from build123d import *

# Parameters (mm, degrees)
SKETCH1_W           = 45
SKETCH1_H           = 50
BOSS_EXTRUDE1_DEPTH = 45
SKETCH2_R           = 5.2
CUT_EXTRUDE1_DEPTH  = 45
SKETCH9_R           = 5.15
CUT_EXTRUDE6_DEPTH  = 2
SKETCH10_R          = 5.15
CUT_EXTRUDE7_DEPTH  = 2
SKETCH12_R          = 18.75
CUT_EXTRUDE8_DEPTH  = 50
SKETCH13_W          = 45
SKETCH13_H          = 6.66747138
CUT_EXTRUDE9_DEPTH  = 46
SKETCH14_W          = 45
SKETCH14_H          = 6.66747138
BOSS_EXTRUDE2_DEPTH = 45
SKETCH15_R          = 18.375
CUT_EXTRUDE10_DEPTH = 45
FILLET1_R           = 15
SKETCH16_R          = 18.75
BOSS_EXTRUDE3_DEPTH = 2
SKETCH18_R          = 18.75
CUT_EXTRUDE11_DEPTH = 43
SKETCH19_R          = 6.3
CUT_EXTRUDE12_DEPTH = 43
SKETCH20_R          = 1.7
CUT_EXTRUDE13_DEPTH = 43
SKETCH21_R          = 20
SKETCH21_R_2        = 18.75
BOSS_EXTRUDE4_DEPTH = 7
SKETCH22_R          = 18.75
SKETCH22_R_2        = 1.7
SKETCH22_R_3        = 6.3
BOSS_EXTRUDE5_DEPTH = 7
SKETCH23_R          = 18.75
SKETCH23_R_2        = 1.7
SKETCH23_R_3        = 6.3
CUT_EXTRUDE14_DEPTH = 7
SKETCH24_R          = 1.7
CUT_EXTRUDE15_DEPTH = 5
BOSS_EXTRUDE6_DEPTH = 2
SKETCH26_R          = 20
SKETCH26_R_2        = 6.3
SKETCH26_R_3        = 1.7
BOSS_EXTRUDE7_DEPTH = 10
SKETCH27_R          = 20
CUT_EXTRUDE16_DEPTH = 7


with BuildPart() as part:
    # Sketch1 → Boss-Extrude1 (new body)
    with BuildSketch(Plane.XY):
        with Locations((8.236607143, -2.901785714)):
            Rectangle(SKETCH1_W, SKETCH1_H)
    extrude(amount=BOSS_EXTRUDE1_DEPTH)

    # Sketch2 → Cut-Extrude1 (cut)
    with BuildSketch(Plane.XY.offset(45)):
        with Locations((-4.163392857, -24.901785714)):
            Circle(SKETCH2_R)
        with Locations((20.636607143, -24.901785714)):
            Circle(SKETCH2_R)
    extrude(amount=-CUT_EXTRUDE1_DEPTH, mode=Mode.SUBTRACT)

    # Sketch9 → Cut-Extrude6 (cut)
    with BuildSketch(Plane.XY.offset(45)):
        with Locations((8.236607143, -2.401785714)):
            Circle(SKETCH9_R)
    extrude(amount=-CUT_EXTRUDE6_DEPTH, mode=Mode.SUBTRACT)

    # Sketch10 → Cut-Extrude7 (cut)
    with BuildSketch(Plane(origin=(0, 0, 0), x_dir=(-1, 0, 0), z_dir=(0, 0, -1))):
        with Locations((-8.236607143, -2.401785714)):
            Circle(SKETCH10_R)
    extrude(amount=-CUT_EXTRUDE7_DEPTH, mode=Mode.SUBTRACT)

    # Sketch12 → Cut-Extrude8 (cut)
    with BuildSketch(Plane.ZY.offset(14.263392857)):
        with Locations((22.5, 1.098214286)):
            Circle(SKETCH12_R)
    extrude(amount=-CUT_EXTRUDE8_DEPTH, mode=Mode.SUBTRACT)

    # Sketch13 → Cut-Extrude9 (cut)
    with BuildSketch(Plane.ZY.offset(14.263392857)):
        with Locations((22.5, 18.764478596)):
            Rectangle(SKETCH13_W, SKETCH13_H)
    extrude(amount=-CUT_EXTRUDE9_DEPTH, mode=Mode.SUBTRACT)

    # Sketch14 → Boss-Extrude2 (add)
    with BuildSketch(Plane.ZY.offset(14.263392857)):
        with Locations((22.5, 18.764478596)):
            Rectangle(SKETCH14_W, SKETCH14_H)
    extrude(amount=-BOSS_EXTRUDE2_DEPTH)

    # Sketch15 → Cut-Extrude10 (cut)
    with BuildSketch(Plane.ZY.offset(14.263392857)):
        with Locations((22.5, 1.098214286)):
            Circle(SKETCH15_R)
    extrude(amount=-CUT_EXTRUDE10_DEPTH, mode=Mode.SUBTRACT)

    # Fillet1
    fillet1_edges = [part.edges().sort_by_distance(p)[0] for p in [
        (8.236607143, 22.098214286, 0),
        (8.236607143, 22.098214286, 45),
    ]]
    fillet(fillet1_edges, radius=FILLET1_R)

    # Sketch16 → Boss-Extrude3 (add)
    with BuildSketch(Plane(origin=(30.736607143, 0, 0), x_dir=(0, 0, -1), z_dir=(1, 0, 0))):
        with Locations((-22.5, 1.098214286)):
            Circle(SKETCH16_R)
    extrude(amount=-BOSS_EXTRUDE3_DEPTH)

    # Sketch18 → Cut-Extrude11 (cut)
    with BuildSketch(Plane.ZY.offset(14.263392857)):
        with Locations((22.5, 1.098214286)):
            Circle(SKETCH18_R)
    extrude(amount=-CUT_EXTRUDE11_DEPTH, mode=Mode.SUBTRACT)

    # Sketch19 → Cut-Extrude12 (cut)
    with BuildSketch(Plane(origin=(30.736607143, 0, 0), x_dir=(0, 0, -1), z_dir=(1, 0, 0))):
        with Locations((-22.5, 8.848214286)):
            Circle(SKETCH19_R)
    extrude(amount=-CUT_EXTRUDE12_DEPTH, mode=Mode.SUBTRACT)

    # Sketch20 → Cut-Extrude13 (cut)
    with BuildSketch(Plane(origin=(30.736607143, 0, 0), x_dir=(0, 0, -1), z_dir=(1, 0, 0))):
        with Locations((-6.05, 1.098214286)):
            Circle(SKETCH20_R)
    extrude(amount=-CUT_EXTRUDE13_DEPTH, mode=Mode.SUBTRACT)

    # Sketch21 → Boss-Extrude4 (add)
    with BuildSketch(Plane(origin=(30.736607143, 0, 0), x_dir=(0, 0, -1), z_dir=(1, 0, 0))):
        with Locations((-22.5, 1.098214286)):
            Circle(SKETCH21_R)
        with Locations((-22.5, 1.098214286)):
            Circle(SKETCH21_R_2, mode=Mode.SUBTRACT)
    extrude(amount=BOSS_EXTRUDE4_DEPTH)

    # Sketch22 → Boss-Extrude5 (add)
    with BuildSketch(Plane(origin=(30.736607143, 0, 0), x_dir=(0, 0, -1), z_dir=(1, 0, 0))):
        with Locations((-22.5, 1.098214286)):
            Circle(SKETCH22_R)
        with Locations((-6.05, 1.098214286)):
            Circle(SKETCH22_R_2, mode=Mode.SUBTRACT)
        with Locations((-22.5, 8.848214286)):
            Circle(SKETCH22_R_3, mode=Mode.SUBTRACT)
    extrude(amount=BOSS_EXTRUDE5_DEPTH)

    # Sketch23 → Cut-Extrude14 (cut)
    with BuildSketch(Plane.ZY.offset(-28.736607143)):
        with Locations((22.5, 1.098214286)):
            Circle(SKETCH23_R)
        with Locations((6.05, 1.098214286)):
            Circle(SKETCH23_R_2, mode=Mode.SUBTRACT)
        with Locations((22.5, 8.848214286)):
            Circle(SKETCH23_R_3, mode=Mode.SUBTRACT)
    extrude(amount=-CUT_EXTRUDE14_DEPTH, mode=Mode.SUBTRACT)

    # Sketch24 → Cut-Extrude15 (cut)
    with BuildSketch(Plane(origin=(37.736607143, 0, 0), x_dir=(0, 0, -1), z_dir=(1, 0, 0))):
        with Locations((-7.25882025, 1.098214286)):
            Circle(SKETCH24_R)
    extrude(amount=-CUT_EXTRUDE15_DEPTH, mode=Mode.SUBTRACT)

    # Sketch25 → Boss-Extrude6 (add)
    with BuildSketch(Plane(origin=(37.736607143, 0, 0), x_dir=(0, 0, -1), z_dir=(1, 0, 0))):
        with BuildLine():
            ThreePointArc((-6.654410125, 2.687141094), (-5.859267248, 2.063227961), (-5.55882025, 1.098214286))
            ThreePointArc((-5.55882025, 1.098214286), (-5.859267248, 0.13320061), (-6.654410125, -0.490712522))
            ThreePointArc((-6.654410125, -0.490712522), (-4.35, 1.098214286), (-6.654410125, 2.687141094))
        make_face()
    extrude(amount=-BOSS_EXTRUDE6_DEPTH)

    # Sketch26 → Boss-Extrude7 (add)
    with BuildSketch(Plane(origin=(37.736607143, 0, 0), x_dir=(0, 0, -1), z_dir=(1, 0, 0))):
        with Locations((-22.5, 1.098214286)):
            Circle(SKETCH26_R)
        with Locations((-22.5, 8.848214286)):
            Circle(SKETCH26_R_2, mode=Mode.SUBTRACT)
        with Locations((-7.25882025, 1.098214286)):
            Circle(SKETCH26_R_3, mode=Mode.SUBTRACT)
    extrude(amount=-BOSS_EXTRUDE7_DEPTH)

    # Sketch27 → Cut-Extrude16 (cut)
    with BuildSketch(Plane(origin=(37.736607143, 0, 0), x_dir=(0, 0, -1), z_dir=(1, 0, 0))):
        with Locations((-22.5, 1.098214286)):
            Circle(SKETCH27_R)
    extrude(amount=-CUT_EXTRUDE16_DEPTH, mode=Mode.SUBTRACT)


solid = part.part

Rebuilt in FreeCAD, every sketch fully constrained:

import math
import FreeCAD as App
import Part
import Sketcher
from FreeCAD import Vector


def edges_at(feature, points):
    """Names of the edges that pass closest to the given points."""
    edges = feature.Shape.Edges
    near = lambda p: min(range(len(edges)), key=lambda i: edges[i].distToShape(Part.Vertex(*p))[0])
    return sorted({f"Edge{near(p) + 1}" for p in points})

doc = App.newDocument("Part")
body = doc.addObject("PartDesign::Body", "Body")

sketch1 = body.newObject("Sketcher::SketchObject", "Sketch")
sketch1.AttachmentSupport = (doc.getObject("XY_Plane"), [""])
sketch1.MapMode = "FlatFace"
sketch1.addGeometry(Part.LineSegment(Vector(-14, 22, 0), Vector(-14, -28, 0)), False)
sketch1.addGeometry(Part.LineSegment(Vector(-14, -28, 0), Vector(31, -28, 0)), False)
sketch1.addGeometry(Part.LineSegment(Vector(31, -28, 0), Vector(31, 22, 0)), False)
sketch1.addGeometry(Part.LineSegment(Vector(31, 22, 0), Vector(-14, 22, 0)), False)
sketch1.addConstraint(Sketcher.Constraint("Coincident", 0, 2, 1, 1))
sketch1.addConstraint(Sketcher.Constraint("Coincident", 1, 2, 2, 1))
sketch1.addConstraint(Sketcher.Constraint("Coincident", 2, 2, 3, 1))
sketch1.addConstraint(Sketcher.Constraint("Coincident", 3, 2, 0, 1))
sketch1.addConstraint(Sketcher.Constraint("Vertical", 0))
sketch1.addConstraint(Sketcher.Constraint("Horizontal", 1))
sketch1.addConstraint(Sketcher.Constraint("Vertical", 2))
sketch1.addConstraint(Sketcher.Constraint("Horizontal", 3))
sketch1.addConstraint(Sketcher.Constraint("DistanceX", 1, 1, 1, 2, 45.0))
sketch1.addConstraint(Sketcher.Constraint("DistanceY", 0, 2, 0, 1, 50.0))
sketch1.addConstraint(Sketcher.Constraint("DistanceX", 0, 2, -1, 1, 14.263393))
sketch1.addConstraint(Sketcher.Constraint("DistanceY", 0, 2, -1, 1, 27.901786))
pad1 = body.newObject("PartDesign::Pad", "Pad")
pad1.Profile = sketch1
pad1.Length = 45

sketch2 = body.newObject("Sketcher::SketchObject", "Sketch001")
sketch2.AttachmentSupport = (doc.getObject("XY_Plane"), [""])
sketch2.MapMode = "FlatFace"
sketch2.AttachmentOffset = App.Placement(Vector(0, 0, 45), App.Rotation())
sketch2.addGeometry(Part.Circle(Vector(-4, -25, 0), Vector(0, 0, 1), 5), False)
sketch2.addGeometry(Part.Circle(Vector(21, -25, 0), Vector(0, 0, 1), 5), False)
sketch2.addConstraint(Sketcher.Constraint("Equal", 0, 1))
sketch2.addConstraint(Sketcher.Constraint("Horizontal", 0, 3, 1, 3))
sketch2.addConstraint(Sketcher.Constraint("Diameter", 0, 10.4))
sketch2.addConstraint(Sketcher.Constraint("DistanceX", 0, 3, 1, 3, 24.8))
sketch2.addConstraint(Sketcher.Constraint("DistanceX", 0, 3, -1, 1, 4.163393))
sketch2.addConstraint(Sketcher.Constraint("DistanceY", 0, 3, -1, 1, 24.901786))
pocket1 = body.newObject("PartDesign::Pocket", "Pocket")
pocket1.Profile = sketch2
pocket1.Length = 45

sketch3 = body.newObject("Sketcher::SketchObject", "Sketch002")
sketch3.AttachmentSupport = (doc.getObject("XY_Plane"), [""])
sketch3.MapMode = "FlatFace"
sketch3.AttachmentOffset = App.Placement(Vector(0, 0, 45), App.Rotation())
sketch3.addGeometry(Part.Circle(Vector(8, -2, 0), Vector(0, 0, 1), 5), False)
sketch3.addConstraint(Sketcher.Constraint("Diameter", 0, 10.3))
sketch3.addConstraint(Sketcher.Constraint("DistanceX", -1, 1, 0, 3, 8.236607))
sketch3.addConstraint(Sketcher.Constraint("DistanceY", 0, 3, -1, 1, 2.401786))
pocket2 = body.newObject("PartDesign::Pocket", "Pocket001")
pocket2.Profile = sketch3
pocket2.Length = 2

sketch4 = body.newObject("Sketcher::SketchObject", "Sketch003")
sketch4.AttachmentSupport = (doc.getObject("XY_Plane"), [""])
sketch4.MapMode = "FlatFace"
sketch4.addGeometry(Part.Circle(Vector(8, -2, 0), Vector(0, 0, 1), 5), False)
sketch4.addConstraint(Sketcher.Constraint("Diameter", 0, 10.3))
sketch4.addConstraint(Sketcher.Constraint("DistanceX", -1, 1, 0, 3, 8.236607))
sketch4.addConstraint(Sketcher.Constraint("DistanceY", 0, 3, -1, 1, 2.401786))
pocket3 = body.newObject("PartDesign::Pocket", "Pocket002")
pocket3.Profile = sketch4
pocket3.Length = 2
pocket3.Reversed = True

sketch5 = body.newObject("Sketcher::SketchObject", "Sketch004")
sketch5.AttachmentSupport = (doc.getObject("YZ_Plane"), [""])
sketch5.MapMode = "FlatFace"
sketch5.AttachmentOffset = App.Placement(Vector(0, 0, -14.263393), App.Rotation())
sketch5.addGeometry(Part.Circle(Vector(1, 22, 0), Vector(0, 0, 1), 19), False)
sketch5.addConstraint(Sketcher.Constraint("Diameter", 0, 37.5))
sketch5.addConstraint(Sketcher.Constraint("DistanceY", -1, 1, 0, 3, 22.5))
sketch5.addConstraint(Sketcher.Constraint("DistanceX", -1, 1, 0, 3, 1.098214))
pocket4 = body.newObject("PartDesign::Pocket", "Pocket003")
pocket4.Profile = sketch5
pocket4.Length = 50
pocket4.Reversed = True

sketch6 = body.newObject("Sketcher::SketchObject", "Sketch005")
sketch6.AttachmentSupport = (doc.getObject("YZ_Plane"), [""])
sketch6.MapMode = "FlatFace"
sketch6.AttachmentOffset = App.Placement(Vector(0, 0, -14.263393), App.Rotation())
sketch6.addGeometry(Part.LineSegment(Vector(22, 0, 0), Vector(15, 0, 0)), False)
sketch6.addGeometry(Part.LineSegment(Vector(15, 0, 0), Vector(15, 45, 0)), False)
sketch6.addGeometry(Part.LineSegment(Vector(15, 45, 0), Vector(22, 45, 0)), False)
sketch6.addGeometry(Part.LineSegment(Vector(22, 45, 0), Vector(22, 0, 0)), False)
sketch6.addConstraint(Sketcher.Constraint("Coincident", 0, 2, 1, 1))
sketch6.addConstraint(Sketcher.Constraint("Coincident", 1, 2, 2, 1))
sketch6.addConstraint(Sketcher.Constraint("Coincident", 2, 2, 3, 1))
sketch6.addConstraint(Sketcher.Constraint("Coincident", 3, 2, 0, 1))
sketch6.addConstraint(Sketcher.Constraint("Horizontal", 0))
sketch6.addConstraint(Sketcher.Constraint("Vertical", 1))
sketch6.addConstraint(Sketcher.Constraint("Horizontal", 2))
sketch6.addConstraint(Sketcher.Constraint("Vertical", 3))
sketch6.addConstraint(Sketcher.Constraint("PointOnObject", 0, 2, -1))
sketch6.addConstraint(Sketcher.Constraint("DistanceY", 1, 1, 1, 2, 45.0))
sketch6.addConstraint(Sketcher.Constraint("DistanceX", 0, 2, 0, 1, 6.667471))
sketch6.addConstraint(Sketcher.Constraint("DistanceX", -1, 1, 0, 2, 15.430743))
pocket5 = body.newObject("PartDesign::Pocket", "Pocket004")
pocket5.Profile = sketch6
pocket5.Length = 46
pocket5.Reversed = True

sketch7 = body.newObject("Sketcher::SketchObject", "Sketch006")
sketch7.AttachmentSupport = (doc.getObject("YZ_Plane"), [""])
sketch7.MapMode = "FlatFace"
sketch7.AttachmentOffset = App.Placement(Vector(0, 0, -14.263393), App.Rotation())
sketch7.addGeometry(Part.LineSegment(Vector(22, 0, 0), Vector(15, 0, 0)), False)
sketch7.addGeometry(Part.LineSegment(Vector(15, 0, 0), Vector(15, 45, 0)), False)
sketch7.addGeometry(Part.LineSegment(Vector(15, 45, 0), Vector(22, 45, 0)), False)
sketch7.addGeometry(Part.LineSegment(Vector(22, 45, 0), Vector(22, 0, 0)), False)
sketch7.addConstraint(Sketcher.Constraint("Coincident", 0, 2, 1, 1))
sketch7.addConstraint(Sketcher.Constraint("Coincident", 1, 2, 2, 1))
sketch7.addConstraint(Sketcher.Constraint("Coincident", 2, 2, 3, 1))
sketch7.addConstraint(Sketcher.Constraint("Coincident", 3, 2, 0, 1))
sketch7.addConstraint(Sketcher.Constraint("Horizontal", 0))
sketch7.addConstraint(Sketcher.Constraint("Vertical", 1))
sketch7.addConstraint(Sketcher.Constraint("Horizontal", 2))
sketch7.addConstraint(Sketcher.Constraint("Vertical", 3))
sketch7.addConstraint(Sketcher.Constraint("PointOnObject", 0, 2, -1))
sketch7.addConstraint(Sketcher.Constraint("DistanceY", 1, 1, 1, 2, 45.0))
sketch7.addConstraint(Sketcher.Constraint("DistanceX", 0, 2, 0, 1, 6.667471))
sketch7.addConstraint(Sketcher.Constraint("DistanceX", -1, 1, 0, 2, 15.430743))
pad2 = body.newObject("PartDesign::Pad", "Pad001")
pad2.Profile = sketch7
pad2.Length = 45

sketch8 = body.newObject("Sketcher::SketchObject", "Sketch007")
sketch8.AttachmentSupport = (doc.getObject("YZ_Plane"), [""])
sketch8.MapMode = "FlatFace"
sketch8.AttachmentOffset = App.Placement(Vector(0, 0, -14.263393), App.Rotation())
sketch8.addGeometry(Part.Circle(Vector(1, 22, 0), Vector(0, 0, 1), 18), False)
sketch8.addConstraint(Sketcher.Constraint("Diameter", 0, 36.75))
sketch8.addConstraint(Sketcher.Constraint("DistanceY", -1, 1, 0, 3, 22.5))
sketch8.addConstraint(Sketcher.Constraint("DistanceX", -1, 1, 0, 3, 1.098214))
pocket6 = body.newObject("PartDesign::Pocket", "Pocket005")
pocket6.Profile = sketch8
pocket6.Length = 45
pocket6.Reversed = True
doc.recompute()

fillet = body.newObject("PartDesign::Fillet", "Fillet")
fillet.Base = (pocket6, edges_at(pocket6, [(8.237, 22.098, 0), (8.237, 22.098, 45)]))
fillet.Radius = 15

sketch9 = body.newObject("Sketcher::SketchObject", "Sketch008")
sketch9.AttachmentSupport = (doc.getObject("YZ_Plane"), [""])
sketch9.MapMode = "FlatFace"
sketch9.AttachmentOffset = App.Placement(Vector(0, 0, 30.736607), App.Rotation())
sketch9.addGeometry(Part.Circle(Vector(1, 22, 0), Vector(0, 0, 1), 19), False)
sketch9.addConstraint(Sketcher.Constraint("Diameter", 0, 37.5))
sketch9.addConstraint(Sketcher.Constraint("DistanceY", -1, 1, 0, 3, 22.5))
sketch9.addConstraint(Sketcher.Constraint("DistanceX", -1, 1, 0, 3, 1.098214))
pad3 = body.newObject("PartDesign::Pad", "Pad002")
pad3.Profile = sketch9
pad3.Length = 2
pad3.Reversed = True

sketch10 = body.newObject("Sketcher::SketchObject", "Sketch009")
sketch10.AttachmentSupport = (doc.getObject("YZ_Plane"), [""])
sketch10.MapMode = "FlatFace"
sketch10.AttachmentOffset = App.Placement(Vector(0, 0, -14.263393), App.Rotation())
sketch10.addGeometry(Part.Circle(Vector(1, 22, 0), Vector(0, 0, 1), 19), False)
sketch10.addConstraint(Sketcher.Constraint("Diameter", 0, 37.5))
sketch10.addConstraint(Sketcher.Constraint("DistanceY", -1, 1, 0, 3, 22.5))
sketch10.addConstraint(Sketcher.Constraint("DistanceX", -1, 1, 0, 3, 1.098214))
pocket7 = body.newObject("PartDesign::Pocket", "Pocket006")
pocket7.Profile = sketch10
pocket7.Length = 43
pocket7.Reversed = True

sketch11 = body.newObject("Sketcher::SketchObject", "Sketch010")
sketch11.AttachmentSupport = (doc.getObject("YZ_Plane"), [""])
sketch11.MapMode = "FlatFace"
sketch11.AttachmentOffset = App.Placement(Vector(0, 0, 30.736607), App.Rotation())
sketch11.addGeometry(Part.Circle(Vector(9, 22, 0), Vector(0, 0, 1), 6), False)
sketch11.addConstraint(Sketcher.Constraint("Diameter", 0, 12.6))
sketch11.addConstraint(Sketcher.Constraint("DistanceY", -1, 1, 0, 3, 22.5))
sketch11.addConstraint(Sketcher.Constraint("DistanceX", -1, 1, 0, 3, 8.848214))
pocket8 = body.newObject("PartDesign::Pocket", "Pocket007")
pocket8.Profile = sketch11
pocket8.Length = 43

sketch12 = body.newObject("Sketcher::SketchObject", "Sketch011")
sketch12.AttachmentSupport = (doc.getObject("YZ_Plane"), [""])
sketch12.MapMode = "FlatFace"
sketch12.AttachmentOffset = App.Placement(Vector(0, 0, 30.736607), App.Rotation())
sketch12.addGeometry(Part.Circle(Vector(1.1, 6, 0), Vector(0, 0, 1), 1.7), False)
sketch12.addConstraint(Sketcher.Constraint("Diameter", 0, 3.4))
sketch12.addConstraint(Sketcher.Constraint("DistanceY", -1, 1, 0, 3, 6.05))
sketch12.addConstraint(Sketcher.Constraint("DistanceX", -1, 1, 0, 3, 1.098214))
pocket9 = body.newObject("PartDesign::Pocket", "Pocket008")
pocket9.Profile = sketch12
pocket9.Length = 43

sketch13 = body.newObject("Sketcher::SketchObject", "Sketch012")
sketch13.AttachmentSupport = (doc.getObject("YZ_Plane"), [""])
sketch13.MapMode = "FlatFace"
sketch13.AttachmentOffset = App.Placement(Vector(0, 0, 30.736607), App.Rotation())
sketch13.addGeometry(Part.Circle(Vector(1, 22, 0), Vector(0, 0, 1), 20), False)
sketch13.addGeometry(Part.Circle(Vector(1, 22, 0), Vector(0, 0, 1), 19), False)
sketch13.addConstraint(Sketcher.Constraint("Coincident", 1, 3, 0, 3))
sketch13.addConstraint(Sketcher.Constraint("Diameter", 0, 40.0))
sketch13.addConstraint(Sketcher.Constraint("Diameter", 1, 37.5))
sketch13.addConstraint(Sketcher.Constraint("DistanceY", -1, 1, 0, 3, 22.5))
sketch13.addConstraint(Sketcher.Constraint("DistanceX", -1, 1, 0, 3, 1.098214))
pad4 = body.newObject("PartDesign::Pad", "Pad003")
pad4.Profile = sketch13
pad4.Length = 7

sketch14 = body.newObject("Sketcher::SketchObject", "Sketch013")
sketch14.AttachmentSupport = (doc.getObject("YZ_Plane"), [""])
sketch14.MapMode = "FlatFace"
sketch14.AttachmentOffset = App.Placement(Vector(0, 0, 30.736607), App.Rotation())
sketch14.addGeometry(Part.Circle(Vector(1.1, 22.5, 0), Vector(0, 0, 1), 18.8), False)
sketch14.addGeometry(Part.Circle(Vector(1.1, 6, 0), Vector(0, 0, 1), 1.7), False)
sketch14.addGeometry(Part.Circle(Vector(8.8, 22.5, 0), Vector(0, 0, 1), 6.3), False)
sketch14.addConstraint(Sketcher.Constraint("Horizontal", 0, 3, 2, 3))
sketch14.addConstraint(Sketcher.Constraint("Vertical", 0, 3, 1, 3))
sketch14.addConstraint(Sketcher.Constraint("Diameter", 0, 37.5))
sketch14.addConstraint(Sketcher.Constraint("Diameter", 1, 3.4))
sketch14.addConstraint(Sketcher.Constraint("Diameter", 2, 12.6))
sketch14.addConstraint(Sketcher.Constraint("DistanceY", -1, 1, 0, 3, 22.5))
sketch14.addConstraint(Sketcher.Constraint("DistanceY", -1, 1, 1, 3, 6.05))
sketch14.addConstraint(Sketcher.Constraint("DistanceX", 0, 3, 2, 3, 7.75))
sketch14.addConstraint(Sketcher.Constraint("DistanceX", -1, 1, 0, 3, 1.098214))
pad5 = body.newObject("PartDesign::Pad", "Pad004")
pad5.Profile = sketch14
pad5.Length = 7

sketch15 = body.newObject("Sketcher::SketchObject", "Sketch014")
sketch15.AttachmentSupport = (doc.getObject("YZ_Plane"), [""])
sketch15.MapMode = "FlatFace"
sketch15.AttachmentOffset = App.Placement(Vector(0, 0, 28.736607), App.Rotation())
sketch15.addGeometry(Part.Circle(Vector(1.1, 22.5, 0), Vector(0, 0, 1), 18.8), False)
sketch15.addGeometry(Part.Circle(Vector(1.1, 6, 0), Vector(0, 0, 1), 1.7), False)
sketch15.addGeometry(Part.Circle(Vector(8.8, 22.5, 0), Vector(0, 0, 1), 6.3), False)
sketch15.addConstraint(Sketcher.Constraint("Horizontal", 0, 3, 2, 3))
sketch15.addConstraint(Sketcher.Constraint("Vertical", 0, 3, 1, 3))
sketch15.addConstraint(Sketcher.Constraint("Diameter", 0, 37.5))
sketch15.addConstraint(Sketcher.Constraint("Diameter", 1, 3.4))
sketch15.addConstraint(Sketcher.Constraint("Diameter", 2, 12.6))
sketch15.addConstraint(Sketcher.Constraint("DistanceY", -1, 1, 0, 3, 22.5))
sketch15.addConstraint(Sketcher.Constraint("DistanceY", -1, 1, 1, 3, 6.05))
sketch15.addConstraint(Sketcher.Constraint("DistanceX", 0, 3, 2, 3, 7.75))
sketch15.addConstraint(Sketcher.Constraint("DistanceX", -1, 1, 0, 3, 1.098214))
pocket10 = body.newObject("PartDesign::Pocket", "Pocket009")
pocket10.Profile = sketch15
pocket10.Length = 7
pocket10.Reversed = True

sketch16 = body.newObject("Sketcher::SketchObject", "Sketch015")
sketch16.AttachmentSupport = (doc.getObject("YZ_Plane"), [""])
sketch16.MapMode = "FlatFace"
sketch16.AttachmentOffset = App.Placement(Vector(0, 0, 37.736607), App.Rotation())
sketch16.addGeometry(Part.Circle(Vector(1.1, 7.3, 0), Vector(0, 0, 1), 1.7), False)
sketch16.addConstraint(Sketcher.Constraint("Diameter", 0, 3.4))
sketch16.addConstraint(Sketcher.Constraint("DistanceY", -1, 1, 0, 3, 7.25882))
sketch16.addConstraint(Sketcher.Constraint("DistanceX", -1, 1, 0, 3, 1.098214))
pocket11 = body.newObject("PartDesign::Pocket", "Pocket010")
pocket11.Profile = sketch16
pocket11.Length = 5

sketch17 = body.newObject("Sketcher::SketchObject", "Sketch016")
sketch17.AttachmentSupport = (doc.getObject("YZ_Plane"), [""])
sketch17.MapMode = "FlatFace"
sketch17.AttachmentOffset = App.Placement(Vector(0, 0, 37.736607), App.Rotation())
sketch17.addGeometry(Part.ArcOfCircle(Part.Circle(Vector(1.1, 7.3, 0), Vector(0, 0, 1), 1.7), math.radians(-90), math.radians(-21)), False)
sketch17.addGeometry(Part.ArcOfCircle(Part.Circle(Vector(1.1, 7.3, 0), Vector(0, 0, 1), 1.7), math.radians(-159), math.radians(-90)), False)
sketch17.addGeometry(Part.ArcOfCircle(Part.Circle(Vector(1.1, 6, 0), Vector(0, 0, 1), 1.7), math.radians(159), math.radians(381)), False)
sketch17.addConstraint(Sketcher.Constraint("Tangent", 0, 1, 1, 2))
sketch17.addConstraint(Sketcher.Constraint("Coincident", 1, 1, 2, 1))
sketch17.addConstraint(Sketcher.Constraint("Coincident", 2, 2, 0, 2))
sketch17.addConstraint(Sketcher.Constraint("Equal", 0, 1))
sketch17.addConstraint(Sketcher.Constraint("Equal", 1, 2))
sketch17.addConstraint(Sketcher.Constraint("Horizontal", 1, 1, 2, 2))
sketch17.addConstraint(Sketcher.Constraint("Vertical", 2, 3, 0, 1))
sketch17.addConstraint(Sketcher.Constraint("Radius", 0, 1.7))
sketch17.addConstraint(Sketcher.Constraint("DistanceY", -1, 1, 2, 3, 6.05))
sketch17.addConstraint(Sketcher.Constraint("DistanceY", -1, 1, 0, 3, 7.25882))
sketch17.addConstraint(Sketcher.Constraint("DistanceX", -1, 1, 2, 2, 2.687141))
pad6 = body.newObject("PartDesign::Pad", "Pad005")
pad6.Profile = sketch17
pad6.Length = 2
pad6.Reversed = True

sketch18 = body.newObject("Sketcher::SketchObject", "Sketch017")
sketch18.AttachmentSupport = (doc.getObject("YZ_Plane"), [""])
sketch18.MapMode = "FlatFace"
sketch18.AttachmentOffset = App.Placement(Vector(0, 0, 37.736607), App.Rotation())
sketch18.addGeometry(Part.Circle(Vector(1.1, 22.5, 0), Vector(0, 0, 1), 20), False)
sketch18.addGeometry(Part.Circle(Vector(1.1, 7.3, 0), Vector(0, 0, 1), 1.7), False)
sketch18.addGeometry(Part.Circle(Vector(8.8, 22.5, 0), Vector(0, 0, 1), 6.3), False)
sketch18.addConstraint(Sketcher.Constraint("Horizontal", 0, 3, 2, 3))
sketch18.addConstraint(Sketcher.Constraint("Vertical", 0, 3, 1, 3))
sketch18.addConstraint(Sketcher.Constraint("Diameter", 0, 40.0))
sketch18.addConstraint(Sketcher.Constraint("Diameter", 1, 3.4))
sketch18.addConstraint(Sketcher.Constraint("Diameter", 2, 12.6))
sketch18.addConstraint(Sketcher.Constraint("DistanceY", -1, 1, 0, 3, 22.5))
sketch18.addConstraint(Sketcher.Constraint("DistanceX", 0, 3, 2, 3, 7.75))
sketch18.addConstraint(Sketcher.Constraint("DistanceY", -1, 1, 1, 3, 7.25882))
sketch18.addConstraint(Sketcher.Constraint("DistanceX", -1, 1, 0, 3, 1.098214))
pad7 = body.newObject("PartDesign::Pad", "Pad006")
pad7.Profile = sketch18
pad7.Length = 10
pad7.Reversed = True

sketch19 = body.newObject("Sketcher::SketchObject", "Sketch018")
sketch19.AttachmentSupport = (doc.getObject("YZ_Plane"), [""])
sketch19.MapMode = "FlatFace"
sketch19.AttachmentOffset = App.Placement(Vector(0, 0, 37.736607), App.Rotation())
sketch19.addGeometry(Part.Circle(Vector(1, 22, 0), Vector(0, 0, 1), 20), False)
sketch19.addConstraint(Sketcher.Constraint("Diameter", 0, 40.0))
sketch19.addConstraint(Sketcher.Constraint("DistanceY", -1, 1, 0, 3, 22.5))
sketch19.addConstraint(Sketcher.Constraint("DistanceX", -1, 1, 0, 3, 1.098214))
pocket12 = body.newObject("PartDesign::Pocket", "Pocket011")
pocket12.Profile = sketch19
pocket12.Length = 7

doc.recompute()
